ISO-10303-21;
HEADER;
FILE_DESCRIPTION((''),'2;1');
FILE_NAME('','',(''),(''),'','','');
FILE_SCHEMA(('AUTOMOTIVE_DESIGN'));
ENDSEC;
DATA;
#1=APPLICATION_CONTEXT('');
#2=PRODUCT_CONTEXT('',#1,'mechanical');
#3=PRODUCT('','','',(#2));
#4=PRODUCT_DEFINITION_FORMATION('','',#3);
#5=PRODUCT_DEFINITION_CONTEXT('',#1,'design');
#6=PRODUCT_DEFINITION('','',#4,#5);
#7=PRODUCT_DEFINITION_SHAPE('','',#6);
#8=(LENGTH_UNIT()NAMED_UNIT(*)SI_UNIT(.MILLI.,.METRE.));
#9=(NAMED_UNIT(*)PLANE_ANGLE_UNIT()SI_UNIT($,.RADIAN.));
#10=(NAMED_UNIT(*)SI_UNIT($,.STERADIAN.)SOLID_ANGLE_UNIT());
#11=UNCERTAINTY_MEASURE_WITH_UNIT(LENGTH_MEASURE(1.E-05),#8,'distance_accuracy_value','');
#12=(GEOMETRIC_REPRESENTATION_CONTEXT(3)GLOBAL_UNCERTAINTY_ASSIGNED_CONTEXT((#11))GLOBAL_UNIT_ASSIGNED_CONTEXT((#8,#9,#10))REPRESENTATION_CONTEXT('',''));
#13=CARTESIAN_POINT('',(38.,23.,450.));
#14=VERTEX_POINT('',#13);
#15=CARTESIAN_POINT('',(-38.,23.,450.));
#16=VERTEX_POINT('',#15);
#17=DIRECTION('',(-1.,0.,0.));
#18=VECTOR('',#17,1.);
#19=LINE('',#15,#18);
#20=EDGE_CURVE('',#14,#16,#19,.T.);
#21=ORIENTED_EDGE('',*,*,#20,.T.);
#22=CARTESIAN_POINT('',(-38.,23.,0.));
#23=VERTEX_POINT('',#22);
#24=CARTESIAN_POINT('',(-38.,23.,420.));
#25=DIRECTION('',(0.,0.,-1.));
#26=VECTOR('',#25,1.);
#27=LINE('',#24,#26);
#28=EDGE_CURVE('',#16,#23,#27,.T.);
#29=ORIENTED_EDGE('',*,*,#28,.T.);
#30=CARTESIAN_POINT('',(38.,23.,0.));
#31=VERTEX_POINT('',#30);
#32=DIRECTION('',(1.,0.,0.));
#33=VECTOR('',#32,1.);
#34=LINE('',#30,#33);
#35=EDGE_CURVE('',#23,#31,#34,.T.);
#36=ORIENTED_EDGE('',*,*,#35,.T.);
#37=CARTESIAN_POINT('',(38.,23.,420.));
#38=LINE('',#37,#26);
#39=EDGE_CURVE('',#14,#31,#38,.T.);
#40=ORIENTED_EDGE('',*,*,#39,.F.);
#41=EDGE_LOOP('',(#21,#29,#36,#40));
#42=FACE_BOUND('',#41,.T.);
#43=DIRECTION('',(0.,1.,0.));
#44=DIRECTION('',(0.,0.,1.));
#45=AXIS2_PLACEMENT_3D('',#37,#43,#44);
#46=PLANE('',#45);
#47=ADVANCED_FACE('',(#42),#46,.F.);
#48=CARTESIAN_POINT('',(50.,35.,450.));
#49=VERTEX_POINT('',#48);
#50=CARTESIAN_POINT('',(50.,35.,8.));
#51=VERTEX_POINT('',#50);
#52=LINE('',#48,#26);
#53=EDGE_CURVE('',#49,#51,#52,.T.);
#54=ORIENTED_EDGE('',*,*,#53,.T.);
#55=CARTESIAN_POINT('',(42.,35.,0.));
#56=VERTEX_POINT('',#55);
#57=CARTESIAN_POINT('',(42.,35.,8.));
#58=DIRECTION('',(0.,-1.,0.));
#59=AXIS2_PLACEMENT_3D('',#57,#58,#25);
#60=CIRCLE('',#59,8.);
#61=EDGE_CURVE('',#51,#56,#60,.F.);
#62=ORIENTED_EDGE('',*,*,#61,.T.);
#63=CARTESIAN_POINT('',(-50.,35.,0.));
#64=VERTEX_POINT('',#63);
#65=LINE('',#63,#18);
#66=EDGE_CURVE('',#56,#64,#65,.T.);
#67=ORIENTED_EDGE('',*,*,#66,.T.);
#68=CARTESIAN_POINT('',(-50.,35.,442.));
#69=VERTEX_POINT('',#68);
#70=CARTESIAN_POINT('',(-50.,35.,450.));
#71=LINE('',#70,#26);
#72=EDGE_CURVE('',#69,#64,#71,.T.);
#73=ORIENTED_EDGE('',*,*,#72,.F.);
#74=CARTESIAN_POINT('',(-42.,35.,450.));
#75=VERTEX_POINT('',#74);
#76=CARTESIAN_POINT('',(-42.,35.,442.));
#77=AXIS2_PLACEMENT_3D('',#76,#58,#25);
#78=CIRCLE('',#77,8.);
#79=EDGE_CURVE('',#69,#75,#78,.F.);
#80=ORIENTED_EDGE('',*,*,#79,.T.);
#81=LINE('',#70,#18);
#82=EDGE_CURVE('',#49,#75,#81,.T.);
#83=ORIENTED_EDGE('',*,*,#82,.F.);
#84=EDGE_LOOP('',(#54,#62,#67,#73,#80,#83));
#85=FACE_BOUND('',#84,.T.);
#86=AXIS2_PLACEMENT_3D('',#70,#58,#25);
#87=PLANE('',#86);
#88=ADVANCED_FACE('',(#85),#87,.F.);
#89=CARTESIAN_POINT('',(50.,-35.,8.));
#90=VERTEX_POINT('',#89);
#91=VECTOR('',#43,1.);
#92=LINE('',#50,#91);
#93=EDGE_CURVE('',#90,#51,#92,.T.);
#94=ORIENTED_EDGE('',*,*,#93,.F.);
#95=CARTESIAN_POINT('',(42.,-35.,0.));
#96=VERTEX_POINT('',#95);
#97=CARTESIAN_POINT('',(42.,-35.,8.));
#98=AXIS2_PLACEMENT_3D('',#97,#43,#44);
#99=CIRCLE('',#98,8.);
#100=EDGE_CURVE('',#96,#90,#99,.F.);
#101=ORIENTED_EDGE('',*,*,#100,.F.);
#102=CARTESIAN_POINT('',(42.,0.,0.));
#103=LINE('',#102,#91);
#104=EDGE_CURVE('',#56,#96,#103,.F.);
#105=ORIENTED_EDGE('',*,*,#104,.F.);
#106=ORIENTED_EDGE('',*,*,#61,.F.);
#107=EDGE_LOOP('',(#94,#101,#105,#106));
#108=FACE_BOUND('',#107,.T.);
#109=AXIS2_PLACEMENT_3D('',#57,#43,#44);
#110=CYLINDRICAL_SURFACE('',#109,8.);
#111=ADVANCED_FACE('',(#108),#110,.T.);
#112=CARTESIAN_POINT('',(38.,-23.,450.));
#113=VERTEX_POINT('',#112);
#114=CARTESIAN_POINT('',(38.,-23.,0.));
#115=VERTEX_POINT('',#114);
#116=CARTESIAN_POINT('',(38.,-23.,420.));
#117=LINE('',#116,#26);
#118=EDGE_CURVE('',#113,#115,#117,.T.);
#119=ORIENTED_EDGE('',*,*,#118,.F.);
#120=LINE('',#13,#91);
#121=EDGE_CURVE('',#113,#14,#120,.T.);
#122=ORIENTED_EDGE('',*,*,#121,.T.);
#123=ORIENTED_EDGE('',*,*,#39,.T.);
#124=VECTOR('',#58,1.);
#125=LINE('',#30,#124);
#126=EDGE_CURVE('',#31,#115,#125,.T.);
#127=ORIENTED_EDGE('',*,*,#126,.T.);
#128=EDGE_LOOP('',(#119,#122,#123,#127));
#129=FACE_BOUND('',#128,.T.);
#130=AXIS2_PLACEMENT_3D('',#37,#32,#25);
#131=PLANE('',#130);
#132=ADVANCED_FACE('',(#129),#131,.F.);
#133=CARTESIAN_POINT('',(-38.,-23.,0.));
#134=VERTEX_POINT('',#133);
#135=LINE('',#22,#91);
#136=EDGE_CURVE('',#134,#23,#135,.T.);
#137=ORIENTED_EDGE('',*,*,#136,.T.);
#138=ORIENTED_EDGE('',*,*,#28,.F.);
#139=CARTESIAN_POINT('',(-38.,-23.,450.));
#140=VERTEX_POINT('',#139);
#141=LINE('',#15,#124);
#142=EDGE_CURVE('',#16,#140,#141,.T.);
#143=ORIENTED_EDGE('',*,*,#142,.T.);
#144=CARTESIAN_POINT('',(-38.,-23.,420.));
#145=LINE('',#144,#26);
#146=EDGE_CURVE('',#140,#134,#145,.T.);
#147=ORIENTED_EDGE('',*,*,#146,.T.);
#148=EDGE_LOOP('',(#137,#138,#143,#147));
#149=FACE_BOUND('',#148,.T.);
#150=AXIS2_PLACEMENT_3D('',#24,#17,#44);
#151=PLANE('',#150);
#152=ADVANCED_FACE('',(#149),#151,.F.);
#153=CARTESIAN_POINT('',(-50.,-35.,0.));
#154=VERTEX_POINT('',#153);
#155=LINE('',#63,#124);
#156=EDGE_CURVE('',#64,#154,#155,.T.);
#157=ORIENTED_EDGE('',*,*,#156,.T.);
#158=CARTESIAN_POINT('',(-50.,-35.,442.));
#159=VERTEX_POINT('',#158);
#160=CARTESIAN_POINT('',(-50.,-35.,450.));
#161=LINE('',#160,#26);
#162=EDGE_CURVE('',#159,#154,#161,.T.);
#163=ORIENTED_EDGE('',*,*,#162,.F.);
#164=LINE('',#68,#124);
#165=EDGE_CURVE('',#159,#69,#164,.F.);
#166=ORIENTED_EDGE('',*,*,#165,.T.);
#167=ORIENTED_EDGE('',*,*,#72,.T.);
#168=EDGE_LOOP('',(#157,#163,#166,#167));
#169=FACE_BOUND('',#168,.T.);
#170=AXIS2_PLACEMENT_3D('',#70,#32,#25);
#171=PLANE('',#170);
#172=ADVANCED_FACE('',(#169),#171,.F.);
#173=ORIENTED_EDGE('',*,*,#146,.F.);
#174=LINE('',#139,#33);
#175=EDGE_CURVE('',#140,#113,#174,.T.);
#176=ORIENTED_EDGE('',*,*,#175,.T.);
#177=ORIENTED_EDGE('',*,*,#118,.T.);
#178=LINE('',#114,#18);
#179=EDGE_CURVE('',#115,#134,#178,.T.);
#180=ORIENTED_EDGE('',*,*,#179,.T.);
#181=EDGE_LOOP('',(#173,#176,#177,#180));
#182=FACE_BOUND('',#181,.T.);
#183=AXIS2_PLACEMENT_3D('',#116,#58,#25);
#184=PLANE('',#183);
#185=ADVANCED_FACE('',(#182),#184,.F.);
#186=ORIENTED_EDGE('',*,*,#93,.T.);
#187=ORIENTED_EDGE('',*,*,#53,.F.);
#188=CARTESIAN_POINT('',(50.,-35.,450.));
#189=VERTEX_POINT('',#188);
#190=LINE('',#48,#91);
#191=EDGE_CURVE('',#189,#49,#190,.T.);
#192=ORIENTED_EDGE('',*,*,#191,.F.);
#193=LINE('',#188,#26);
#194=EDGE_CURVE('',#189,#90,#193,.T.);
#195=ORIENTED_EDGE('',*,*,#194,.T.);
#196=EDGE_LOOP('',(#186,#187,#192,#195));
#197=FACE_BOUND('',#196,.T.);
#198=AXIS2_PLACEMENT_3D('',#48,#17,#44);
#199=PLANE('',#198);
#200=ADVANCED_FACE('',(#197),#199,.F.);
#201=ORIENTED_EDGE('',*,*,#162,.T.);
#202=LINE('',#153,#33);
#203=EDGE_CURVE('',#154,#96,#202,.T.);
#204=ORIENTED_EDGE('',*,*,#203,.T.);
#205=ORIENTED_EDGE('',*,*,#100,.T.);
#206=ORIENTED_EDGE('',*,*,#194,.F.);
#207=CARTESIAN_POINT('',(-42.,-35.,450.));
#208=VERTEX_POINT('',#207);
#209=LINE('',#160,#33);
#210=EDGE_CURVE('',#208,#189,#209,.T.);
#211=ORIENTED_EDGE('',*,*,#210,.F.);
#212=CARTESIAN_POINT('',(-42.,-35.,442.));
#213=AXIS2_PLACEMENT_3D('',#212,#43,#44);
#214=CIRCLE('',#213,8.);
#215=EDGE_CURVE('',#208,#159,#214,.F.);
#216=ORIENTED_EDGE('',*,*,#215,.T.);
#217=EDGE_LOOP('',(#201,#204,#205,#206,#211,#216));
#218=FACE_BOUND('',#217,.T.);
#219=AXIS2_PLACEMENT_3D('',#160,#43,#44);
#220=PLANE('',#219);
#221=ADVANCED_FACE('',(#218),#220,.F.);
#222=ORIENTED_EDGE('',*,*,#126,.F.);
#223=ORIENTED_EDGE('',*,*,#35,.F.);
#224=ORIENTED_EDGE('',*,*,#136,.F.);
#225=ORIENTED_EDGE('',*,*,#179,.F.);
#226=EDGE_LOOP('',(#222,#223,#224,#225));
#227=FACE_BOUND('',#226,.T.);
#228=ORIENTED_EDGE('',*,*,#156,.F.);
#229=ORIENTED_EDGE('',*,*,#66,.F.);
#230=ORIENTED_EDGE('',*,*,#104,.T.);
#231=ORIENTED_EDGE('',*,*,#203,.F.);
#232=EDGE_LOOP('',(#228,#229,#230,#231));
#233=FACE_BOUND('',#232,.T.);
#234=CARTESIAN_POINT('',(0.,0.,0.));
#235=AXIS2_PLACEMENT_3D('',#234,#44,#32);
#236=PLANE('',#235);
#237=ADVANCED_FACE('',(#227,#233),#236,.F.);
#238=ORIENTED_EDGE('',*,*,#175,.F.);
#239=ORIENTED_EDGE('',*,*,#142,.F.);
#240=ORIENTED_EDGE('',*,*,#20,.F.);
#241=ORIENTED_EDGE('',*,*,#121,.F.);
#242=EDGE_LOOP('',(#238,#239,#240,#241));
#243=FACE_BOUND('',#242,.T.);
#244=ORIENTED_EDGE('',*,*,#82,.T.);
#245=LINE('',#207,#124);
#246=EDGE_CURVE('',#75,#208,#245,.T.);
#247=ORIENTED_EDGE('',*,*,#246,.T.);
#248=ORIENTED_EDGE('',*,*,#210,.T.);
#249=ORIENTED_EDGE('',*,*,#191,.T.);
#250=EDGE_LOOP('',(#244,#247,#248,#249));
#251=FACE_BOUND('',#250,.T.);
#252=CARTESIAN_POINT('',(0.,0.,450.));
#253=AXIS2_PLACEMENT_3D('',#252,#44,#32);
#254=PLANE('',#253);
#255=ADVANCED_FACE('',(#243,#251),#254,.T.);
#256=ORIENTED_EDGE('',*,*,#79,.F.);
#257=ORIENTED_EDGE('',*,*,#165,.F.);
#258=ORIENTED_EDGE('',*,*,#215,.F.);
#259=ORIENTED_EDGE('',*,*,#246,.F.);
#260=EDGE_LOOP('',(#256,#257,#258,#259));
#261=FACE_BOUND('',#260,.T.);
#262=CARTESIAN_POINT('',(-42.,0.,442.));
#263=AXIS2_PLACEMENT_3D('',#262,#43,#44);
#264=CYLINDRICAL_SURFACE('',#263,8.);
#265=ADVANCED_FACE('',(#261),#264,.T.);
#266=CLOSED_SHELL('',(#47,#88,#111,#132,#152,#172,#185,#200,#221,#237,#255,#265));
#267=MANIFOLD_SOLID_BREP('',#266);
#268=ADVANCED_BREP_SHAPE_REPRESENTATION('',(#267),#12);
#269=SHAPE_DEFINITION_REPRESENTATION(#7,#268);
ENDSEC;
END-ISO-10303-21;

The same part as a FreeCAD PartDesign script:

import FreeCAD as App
import Part
import Sketcher
Q = App.Units.Quantity


def edges_at(feature, points):
    """Names of the edges that pass closest to the given points."""
    edges = feature.Shape.Edges
    near = lambda p: min(range(len(edges)), key=lambda i: edges[i].distToShape(Part.Vertex(*p))[0])
    return sorted({f"Edge{near(p) + 1}" for p in points})

doc = App.newDocument("Part")
body = doc.addObject("PartDesign::Body", "Body")

# Sketch on XY plane
sketch1 = body.newObject("Sketcher::SketchObject", "Sketch")
sketch1.AttachmentSupport = (doc.getObject("XY_Plane"), [""])
sketch1.MapMode = "FlatFace"
sketch1.addGeometry(Part.LineSegment(App.Vector(-50, 35, 0), App.Vector(-50, -35, 0)), False)
sketch1.addGeometry(Part.LineSegment(App.Vector(-50, -35, 0), App.Vector(50, -35, 0)), False)
sketch1.addGeometry(Part.LineSegment(App.Vector(50, -35, 0), App.Vector(50, 35, 0)), False)
sketch1.addGeometry(Part.LineSegment(App.Vector(50, 35, 0), App.Vector(-50, 35, 0)), False)
sketch1.addConstraint(Sketcher.Constraint("Coincident", 0, 2, 1, 1))
sketch1.addConstraint(Sketcher.Constraint("Coincident", 1, 2, 2, 1))
sketch1.addConstraint(Sketcher.Constraint("Coincident", 2, 2, 3, 1))
sketch1.addConstraint(Sketcher.Constraint("Coincident", 3, 2, 0, 1))
sketch1.addConstraint(Sketcher.Constraint("Vertical", 0))
sketch1.addConstraint(Sketcher.Constraint("Horizontal", 1))
sketch1.addConstraint(Sketcher.Constraint("Vertical", 2))
sketch1.addConstraint(Sketcher.Constraint("Horizontal", 3))
sketch1.addConstraint(Sketcher.Constraint("Symmetric", 0, 2, 2, 2, -1, 1))
sketch1.addConstraint(Sketcher.Constraint("DistanceX", 1, 1, 1, 2, Q("100 mm")))
sketch1.addConstraint(Sketcher.Constraint("DistanceY", 0, 2, 0, 1, Q("70 mm")))
pad1 = body.newObject("PartDesign::Pad", "Pad")
pad1.Profile = sketch1
pad1.Length = 450

# Sketch on XY plane
sketch2 = body.newObject("Sketcher::SketchObject", "Sketch001")
sketch2.AttachmentSupport = (doc.getObject("XY_Plane"), [""])
sketch2.MapMode = "FlatFace"
sketch2.addGeometry(Part.LineSegment(App.Vector(38, 23, 0), App.Vector(38, -23, 0)), False)
sketch2.addGeometry(Part.LineSegment(App.Vector(38, -23, 0), App.Vector(-38, -23, 0)), False)
sketch2.addGeometry(Part.LineSegment(App.Vector(-38, -23, 0), App.Vector(-38, 23, 0)), False)
sketch2.addGeometry(Part.LineSegment(App.Vector(-38, 23, 0), App.Vector(38, 23, 0)), False)
sketch2.addConstraint(Sketcher.Constraint("Coincident", 0, 2, 1, 1))
sketch2.addConstraint(Sketcher.Constraint("Coincident", 1, 2, 2, 1))
sketch2.addConstraint(Sketcher.Constraint("Coincident", 2, 2, 3, 1))
sketch2.addConstraint(Sketcher.Constraint("Coincident", 3, 2, 0, 1))
sketch2.addConstraint(Sketcher.Constraint("Vertical", 0))
sketch2.addConstraint(Sketcher.Constraint("Horizontal", 1))
sketch2.addConstraint(Sketcher.Constraint("Vertical", 2))
sketch2.addConstraint(Sketcher.Constraint("Horizontal", 3))
sketch2.addConstraint(Sketcher.Constraint("Symmetric", 0, 2, 2, 2, -1, 1))
sketch2.addConstraint(Sketcher.Constraint("DistanceX", 1, 2, 1, 1, Q("76 mm")))
sketch2.addConstraint(Sketcher.Constraint("DistanceY", 0, 2, 0, 1, Q("46 mm")))
pocket1 = body.newObject("PartDesign::Pocket", "Pocket")
pocket1.Profile = sketch2
pocket1.Length = 420
pocket1.Reversed = True

# Sketch on XY plane
sketch3 = body.newObject("Sketcher::SketchObject", "Sketch002")
sketch3.AttachmentSupport = (doc.getObject("XY_Plane"), [""])
sketch3.MapMode = "FlatFace"
sketch3.AttachmentOffset = App.Placement(App.Vector(0, 0, 450), App.Rotation())
sketch3.addGeometry(Part.LineSegment(App.Vector(-38, 23, 0), App.Vector(-38, -23, 0)), False)
sketch3.addGeometry(Part.LineSegment(App.Vector(-38, -23, 0), App.Vector(38, -23, 0)), False)
sketch3.addGeometry(Part.LineSegment(App.Vector(38, -23, 0), App.Vector(38, 23, 0)), False)
sketch3.addGeometry(Part.LineSegment(App.Vector(38, 23, 0), App.Vector(-38, 23, 0)), False)
sketch3.addConstraint(Sketcher.Constraint("Coincident", 0, 2, 1, 1))
sketch3.addConstraint(Sketcher.Constraint("Coincident", 1, 2, 2, 1))
sketch3.addConstraint(Sketcher.Constraint("Coincident", 2, 2, 3, 1))
sketch3.addConstraint(Sketcher.Constraint("Coincident", 3, 2, 0, 1))
sketch3.addConstraint(Sketcher.Constraint("Vertical", 0))
sketch3.addConstraint(Sketcher.Constraint("Horizontal", 1))
sketch3.addConstraint(Sketcher.Constraint("Vertical", 2))
sketch3.addConstraint(Sketcher.Constraint("Horizontal", 3))
sketch3.addConstraint(Sketcher.Constraint("Symmetric", 0, 2, 2, 2, -1, 1))
sketch3.addConstraint(Sketcher.Constraint("DistanceX", 1, 1, 1, 2, Q("76 mm")))
sketch3.addConstraint(Sketcher.Constraint("DistanceY", 0, 2, 0, 1, Q("46 mm")))
pocket2 = body.newObject("PartDesign::Pocket", "Pocket001")
pocket2.Profile = sketch3
pocket2.Length = 30
doc.recompute()

fillet = body.newObject("PartDesign::Fillet", "Fillet")
fillet.Base = (pocket2, edges_at(pocket2, [(50, 0, 0)]))
fillet.Radius = 8
doc.recompute()

fillet2 = body.newObject("PartDesign::Fillet", "Fillet001")
fillet2.Base = (fillet, edges_at(fillet, [(-50, 0, 450)]))
fillet2.Radius = 8

doc.recompute()
